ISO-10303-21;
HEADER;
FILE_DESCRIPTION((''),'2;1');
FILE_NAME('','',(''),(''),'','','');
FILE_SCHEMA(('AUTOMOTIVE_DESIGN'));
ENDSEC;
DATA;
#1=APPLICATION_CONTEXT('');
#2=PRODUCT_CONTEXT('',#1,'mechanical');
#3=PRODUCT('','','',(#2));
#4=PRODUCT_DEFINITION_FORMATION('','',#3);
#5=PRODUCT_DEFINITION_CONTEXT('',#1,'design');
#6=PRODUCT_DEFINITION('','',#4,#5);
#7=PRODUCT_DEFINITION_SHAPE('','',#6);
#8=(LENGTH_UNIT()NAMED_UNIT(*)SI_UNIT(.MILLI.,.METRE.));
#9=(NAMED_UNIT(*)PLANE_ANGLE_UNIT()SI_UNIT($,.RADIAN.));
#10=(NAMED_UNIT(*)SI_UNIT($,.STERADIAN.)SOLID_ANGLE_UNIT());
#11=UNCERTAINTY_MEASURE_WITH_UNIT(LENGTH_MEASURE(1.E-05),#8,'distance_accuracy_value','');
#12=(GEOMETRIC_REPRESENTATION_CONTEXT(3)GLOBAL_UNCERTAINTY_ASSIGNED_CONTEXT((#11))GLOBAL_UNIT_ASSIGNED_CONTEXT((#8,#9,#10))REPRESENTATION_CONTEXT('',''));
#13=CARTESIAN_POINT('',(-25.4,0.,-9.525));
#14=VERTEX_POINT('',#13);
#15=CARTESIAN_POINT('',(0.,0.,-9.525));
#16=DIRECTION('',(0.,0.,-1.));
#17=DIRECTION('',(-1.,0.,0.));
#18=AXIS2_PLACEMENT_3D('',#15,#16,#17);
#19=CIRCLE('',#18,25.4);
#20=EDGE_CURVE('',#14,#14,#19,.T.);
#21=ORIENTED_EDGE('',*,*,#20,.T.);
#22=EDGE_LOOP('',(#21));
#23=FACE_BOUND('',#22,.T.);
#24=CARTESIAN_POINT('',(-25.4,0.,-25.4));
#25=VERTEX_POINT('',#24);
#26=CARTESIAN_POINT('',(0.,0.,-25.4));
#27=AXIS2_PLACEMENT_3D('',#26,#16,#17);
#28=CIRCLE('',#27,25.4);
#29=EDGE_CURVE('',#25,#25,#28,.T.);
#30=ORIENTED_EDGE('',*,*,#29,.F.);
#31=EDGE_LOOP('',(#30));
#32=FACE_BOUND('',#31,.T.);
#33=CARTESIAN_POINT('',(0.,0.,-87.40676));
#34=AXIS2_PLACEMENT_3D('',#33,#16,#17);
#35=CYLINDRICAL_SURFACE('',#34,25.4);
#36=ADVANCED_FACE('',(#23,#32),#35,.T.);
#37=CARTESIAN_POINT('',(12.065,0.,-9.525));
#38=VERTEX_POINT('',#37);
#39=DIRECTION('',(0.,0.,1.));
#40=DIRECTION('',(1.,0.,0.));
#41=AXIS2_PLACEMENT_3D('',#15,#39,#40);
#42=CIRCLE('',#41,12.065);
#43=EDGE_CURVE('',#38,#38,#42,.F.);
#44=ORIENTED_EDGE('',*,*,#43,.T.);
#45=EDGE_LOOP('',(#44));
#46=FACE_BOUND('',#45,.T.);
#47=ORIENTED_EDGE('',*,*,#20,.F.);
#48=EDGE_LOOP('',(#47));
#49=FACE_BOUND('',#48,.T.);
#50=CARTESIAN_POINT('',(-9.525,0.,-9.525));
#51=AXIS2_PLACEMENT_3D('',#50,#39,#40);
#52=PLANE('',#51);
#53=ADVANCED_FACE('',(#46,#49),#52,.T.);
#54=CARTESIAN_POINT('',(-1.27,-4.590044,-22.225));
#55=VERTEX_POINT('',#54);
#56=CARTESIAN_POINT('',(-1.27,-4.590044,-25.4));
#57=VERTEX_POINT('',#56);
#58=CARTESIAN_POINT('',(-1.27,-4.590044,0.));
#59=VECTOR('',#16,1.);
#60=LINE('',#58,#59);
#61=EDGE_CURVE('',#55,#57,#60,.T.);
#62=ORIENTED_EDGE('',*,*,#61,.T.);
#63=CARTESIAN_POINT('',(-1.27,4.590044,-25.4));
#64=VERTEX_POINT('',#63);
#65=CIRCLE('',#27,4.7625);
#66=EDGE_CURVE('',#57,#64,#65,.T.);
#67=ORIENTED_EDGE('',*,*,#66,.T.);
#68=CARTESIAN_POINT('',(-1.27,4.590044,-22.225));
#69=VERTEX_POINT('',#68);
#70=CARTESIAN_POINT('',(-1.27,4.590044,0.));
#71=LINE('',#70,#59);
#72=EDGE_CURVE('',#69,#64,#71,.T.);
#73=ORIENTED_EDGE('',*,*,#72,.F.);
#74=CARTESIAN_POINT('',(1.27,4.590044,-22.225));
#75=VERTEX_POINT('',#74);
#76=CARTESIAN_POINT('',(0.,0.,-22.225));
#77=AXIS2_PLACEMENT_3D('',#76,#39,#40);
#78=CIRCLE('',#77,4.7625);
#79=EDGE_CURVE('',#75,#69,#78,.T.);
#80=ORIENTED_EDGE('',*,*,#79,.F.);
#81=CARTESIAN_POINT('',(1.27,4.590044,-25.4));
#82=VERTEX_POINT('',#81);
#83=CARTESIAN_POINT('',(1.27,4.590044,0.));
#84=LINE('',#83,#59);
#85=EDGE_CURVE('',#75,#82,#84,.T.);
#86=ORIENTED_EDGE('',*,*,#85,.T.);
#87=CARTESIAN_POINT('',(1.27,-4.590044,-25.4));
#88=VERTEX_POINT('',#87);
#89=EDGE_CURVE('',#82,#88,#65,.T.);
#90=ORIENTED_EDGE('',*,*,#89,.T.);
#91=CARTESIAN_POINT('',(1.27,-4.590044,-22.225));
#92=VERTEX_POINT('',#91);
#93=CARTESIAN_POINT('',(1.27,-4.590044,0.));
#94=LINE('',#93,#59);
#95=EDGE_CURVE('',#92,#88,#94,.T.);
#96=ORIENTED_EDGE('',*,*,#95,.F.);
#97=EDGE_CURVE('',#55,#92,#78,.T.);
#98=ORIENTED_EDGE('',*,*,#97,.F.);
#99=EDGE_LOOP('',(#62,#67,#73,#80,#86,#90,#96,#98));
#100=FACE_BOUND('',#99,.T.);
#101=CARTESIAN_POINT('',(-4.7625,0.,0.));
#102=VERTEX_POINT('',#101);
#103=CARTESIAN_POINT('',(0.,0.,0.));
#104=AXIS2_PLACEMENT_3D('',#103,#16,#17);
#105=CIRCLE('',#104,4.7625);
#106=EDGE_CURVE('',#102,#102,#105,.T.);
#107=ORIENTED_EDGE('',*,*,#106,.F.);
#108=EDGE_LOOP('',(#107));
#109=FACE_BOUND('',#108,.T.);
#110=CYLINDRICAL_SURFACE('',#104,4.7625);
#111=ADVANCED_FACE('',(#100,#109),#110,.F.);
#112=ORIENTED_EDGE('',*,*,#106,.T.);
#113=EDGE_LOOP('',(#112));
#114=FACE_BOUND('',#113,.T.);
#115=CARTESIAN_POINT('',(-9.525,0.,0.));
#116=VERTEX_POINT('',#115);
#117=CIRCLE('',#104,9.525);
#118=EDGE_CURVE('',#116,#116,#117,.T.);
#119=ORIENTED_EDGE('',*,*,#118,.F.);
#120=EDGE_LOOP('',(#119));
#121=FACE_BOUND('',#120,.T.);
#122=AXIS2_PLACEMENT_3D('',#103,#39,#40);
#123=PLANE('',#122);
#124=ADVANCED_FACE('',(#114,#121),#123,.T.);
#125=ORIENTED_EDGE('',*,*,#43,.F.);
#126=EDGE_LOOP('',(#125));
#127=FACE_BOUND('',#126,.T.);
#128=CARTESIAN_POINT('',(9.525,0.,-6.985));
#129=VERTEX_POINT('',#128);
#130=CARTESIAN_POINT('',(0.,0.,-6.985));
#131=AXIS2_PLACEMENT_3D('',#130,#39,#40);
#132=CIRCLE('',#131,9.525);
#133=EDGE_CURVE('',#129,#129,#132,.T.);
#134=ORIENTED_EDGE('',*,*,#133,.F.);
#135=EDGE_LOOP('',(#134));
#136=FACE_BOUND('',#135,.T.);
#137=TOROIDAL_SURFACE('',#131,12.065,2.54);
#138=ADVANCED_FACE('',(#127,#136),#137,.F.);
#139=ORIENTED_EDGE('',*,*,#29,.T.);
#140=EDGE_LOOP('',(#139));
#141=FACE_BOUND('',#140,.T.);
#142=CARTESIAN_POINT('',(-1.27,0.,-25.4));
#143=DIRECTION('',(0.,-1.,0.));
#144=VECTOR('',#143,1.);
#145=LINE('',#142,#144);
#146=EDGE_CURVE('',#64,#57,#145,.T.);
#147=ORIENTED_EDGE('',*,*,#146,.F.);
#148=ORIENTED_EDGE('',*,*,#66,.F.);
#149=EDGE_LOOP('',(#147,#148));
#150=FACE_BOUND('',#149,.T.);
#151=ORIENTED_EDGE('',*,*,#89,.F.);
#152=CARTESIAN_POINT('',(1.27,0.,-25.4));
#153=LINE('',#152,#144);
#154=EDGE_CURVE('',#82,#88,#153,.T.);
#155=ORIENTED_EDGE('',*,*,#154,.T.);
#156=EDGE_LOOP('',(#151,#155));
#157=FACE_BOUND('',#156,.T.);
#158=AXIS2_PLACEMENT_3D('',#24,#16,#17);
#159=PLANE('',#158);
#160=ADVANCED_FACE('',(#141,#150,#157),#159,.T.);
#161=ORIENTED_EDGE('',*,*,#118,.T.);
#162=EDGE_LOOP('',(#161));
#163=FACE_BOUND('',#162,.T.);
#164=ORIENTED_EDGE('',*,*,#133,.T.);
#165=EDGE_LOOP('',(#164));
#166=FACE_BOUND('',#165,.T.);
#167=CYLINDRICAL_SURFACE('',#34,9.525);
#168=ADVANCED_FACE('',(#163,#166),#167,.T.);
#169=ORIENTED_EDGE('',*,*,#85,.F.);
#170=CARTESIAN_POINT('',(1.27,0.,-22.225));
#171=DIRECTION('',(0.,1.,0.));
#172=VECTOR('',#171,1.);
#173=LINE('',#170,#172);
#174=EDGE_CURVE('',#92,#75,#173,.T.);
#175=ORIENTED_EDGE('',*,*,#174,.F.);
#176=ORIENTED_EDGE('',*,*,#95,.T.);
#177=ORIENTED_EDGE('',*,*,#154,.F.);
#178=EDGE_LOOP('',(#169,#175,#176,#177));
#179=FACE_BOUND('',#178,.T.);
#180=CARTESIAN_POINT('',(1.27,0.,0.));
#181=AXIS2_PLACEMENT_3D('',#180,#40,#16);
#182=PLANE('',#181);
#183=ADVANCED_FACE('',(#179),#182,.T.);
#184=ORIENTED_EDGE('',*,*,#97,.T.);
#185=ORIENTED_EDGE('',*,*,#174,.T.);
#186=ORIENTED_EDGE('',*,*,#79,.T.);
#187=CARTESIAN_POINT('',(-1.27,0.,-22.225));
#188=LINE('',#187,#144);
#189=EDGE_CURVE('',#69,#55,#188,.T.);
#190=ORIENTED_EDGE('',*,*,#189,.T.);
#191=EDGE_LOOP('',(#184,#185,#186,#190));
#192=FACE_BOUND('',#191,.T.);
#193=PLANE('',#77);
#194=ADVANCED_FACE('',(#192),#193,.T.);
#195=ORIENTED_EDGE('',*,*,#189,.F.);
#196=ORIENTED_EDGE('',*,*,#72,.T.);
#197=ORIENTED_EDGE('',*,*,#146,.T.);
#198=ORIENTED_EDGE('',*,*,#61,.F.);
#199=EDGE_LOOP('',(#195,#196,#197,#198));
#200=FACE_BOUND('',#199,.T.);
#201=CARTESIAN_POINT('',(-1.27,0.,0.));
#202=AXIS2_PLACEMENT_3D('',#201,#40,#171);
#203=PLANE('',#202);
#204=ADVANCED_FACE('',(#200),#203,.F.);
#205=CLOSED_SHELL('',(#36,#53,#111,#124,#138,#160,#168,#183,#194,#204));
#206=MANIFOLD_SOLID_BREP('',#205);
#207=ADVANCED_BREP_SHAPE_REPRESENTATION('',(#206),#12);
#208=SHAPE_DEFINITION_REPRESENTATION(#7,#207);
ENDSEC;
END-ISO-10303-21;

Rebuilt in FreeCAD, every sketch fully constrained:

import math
import FreeCAD as App
import Part
import Sketcher

V = App.Vector
Q = App.Units.Quantity


def edges_at(feature, points):
    """Names of the edges that pass closest to the given points."""
    edges = feature.Shape.Edges
    near = lambda p: min(range(len(edges)), key=lambda i: edges[i].distToShape(Part.Vertex(*p))[0])
    return sorted({f"Edge{near(p) + 1}" for p in points})


def add_polygon(sketch, points):
    """Adds a closed chain of lines whose ends are joined by coincident constraints."""
    first, n = sketch.GeometryCount, len(points)
    for a, b in zip(points, points[1:] + points[:1]):
        sketch.addGeometry(Part.LineSegment(App.Vector(*a, 0), App.Vector(*b, 0)), False)
    for i in range(n):
        sketch.addConstraint(Sketcher.Constraint("Coincident", first + i, 2, first + (i + 1) % n, 1))

doc = App.newDocument("Part")
params = doc.addObject("Spreadsheet::Sheet", "Params")
for row, (alias, value) in enumerate([
    ("sketch1_width", "1 in"),
    ("sketch1_width2", "0.375 in"),
    ("revolution_angle", "360 deg"),
    ("sketch2_radius", "0.1875 in"),
    ("sketch3_radius", "0.1875 in"),
    ("pocket2_length", "0.875 in"),
    ("fillet_radius", "0.1 in"),
], start=1):
    params.set(f"A{row}", alias)
    params.set(f"B{row}", "=" + value)
    params.setAlias(f"B{row}", alias)

body = doc.addObject("PartDesign::Body", "Body")

sketch1 = doc.addObject("Sketcher::SketchObject", "Sketch")
body.addObject(sketch1)
sketch1.AttachmentSupport = (doc.XZ_Plane, [""])
sketch1.MapMode = "FlatFace"
add_polygon(sketch1, [(-9.525, 0), (0, 0), (0, -25.4), (-25.4, -25.4), (-25.4, -9.525), (-9.525, -9.525)])
sketch1.addConstraint([
    Sketcher.Constraint("Horizontal", 0),
    Sketcher.Constraint("Vertical", 1),
    Sketcher.Constraint("Horizontal", 2),
    Sketcher.Constraint("Vertical", 3),
    Sketcher.Constraint("Horizontal", 4),
    Sketcher.Constraint("Vertical", 5),
    Sketcher.Constraint("Coincident", 0, 2, -1, 1),
    Sketcher.Constraint("Equal", 2, 1),
    Sketcher.Constraint("Equal", 4, 3),
    Sketcher.Constraint("DistanceX", 2, 2, 2, 1, Q("1 in")),
    Sketcher.Constraint("DistanceX", 0, 1, 0, 2, Q("0.375 in")),
])
sketch1.setExpression("Constraints[15]", "Params.sketch1_width")
sketch1.setExpression("Constraints[16]", "Params.sketch1_width2")
revolution = doc.addObject("PartDesign::Revolution", "Revolution")
body.addObject(revolution)
revolution.Profile = sketch1
revolution.ReferenceAxis = (sketch1, ["V_Axis"])
revolution.setExpression("Angle", "Params.revolution_angle")

sketch2 = doc.addObject("Sketcher::SketchObject", "Sketch001")
body.addObject(sketch2)
sketch2.AttachmentSupport = (doc.XY_Plane, [""])
sketch2.MapMode = "FlatFace"
sketch2.AttachmentOffset = App.Placement(V(0, 0, -1 * 25.4), App.Rotation())
sketch2.addGeometry([
    Part.LineSegment(V(1.27, -4.590044, 0), V(1.27, 4.590044, 0)),
    Part.ArcOfCircle(Part.Circle(V(0, 0, 0), V(0, 0, 1), 4.7625), math.radians(-74.53399), math.radians(74.53399)),
    Part.ArcOfCircle(Part.Circle(V(0, 0, 0), V(0, 0, 1), 4.7625), math.radians(105.46601), math.radians(180)),
    Part.LineSegment(V(-1.27, 4.590044, 0), V(-1.27, -4.590044, 0)),
    Part.ArcOfCircle(Part.Circle(V(0, 0, 0), V(0, 0, 1), 4.7625), math.radians(180), math.radians(254.53399)),
], False)
sketch2.addConstraint([
    Sketcher.Constraint("Coincident", 0, 1, 1, 1),
    Sketcher.Constraint("Coincident", 1, 2, 0, 2),
    Sketcher.Constraint("Coincident", 2, 1, 3, 1),
    Sketcher.Constraint("Coincident", 3, 2, 4, 2),
    Sketcher.Constraint("Tangent", 4, 1, 2, 2),
    Sketcher.Constraint("Vertical", 0),
    Sketcher.Constraint("Vertical", 3),
    Sketcher.Constraint("Coincident", 1, 3, -1, 1),
    Sketcher.Constraint("Coincident", 2, 3, -1, 1),
    Sketcher.Constraint("Equal", 1, 2),
    Sketcher.Constraint("Equal", 2, 4),
    Sketcher.Constraint("PointOnObject", 4, 1, -1),
    Sketcher.Constraint("Horizontal", 1, 2, 2, 1),
    Sketcher.Constraint("Radius", 1, Q("0.1875 in")),
    Sketcher.Constraint("DistanceX", 2, 1, 1, 2, Q("0.1 in")),
])
sketch2.setExpression("Constraints[13]", "Params.sketch2_radius")
pocket1 = doc.addObject("PartDesign::Pocket", "Pocket")
body.addObject(pocket1)
pocket1.Profile = sketch2
pocket1.Type = "ThroughAll"
pocket1.Reversed = True

sketch3 = doc.addObject("Sketcher::SketchObject", "Sketch002")
body.addObject(sketch3)
sketch3.AttachmentSupport = (doc.XY_Plane, [""])
sketch3.MapMode = "FlatFace"
sketch3.addGeometry([
    Part.ArcOfCircle(Part.Circle(V(0, 0, 0), V(0, 0, 1), 4.7625), math.radians(74.53399), math.radians(105.46601)),
    Part.LineSegment(V(-1.27, 4.590044, 0), V(-1.27, -4.590044, 0)),
    Part.ArcOfCircle(Part.Circle(V(0, 0, 0), V(0, 0, 1), 4.7625), math.radians(-105.46601), math.radians(-74.53399)),
    Part.LineSegment(V(1.27, -4.590044, 0), V(1.27, 4.590044, 0)),
], False)
sketch3.addConstraint([
    Sketcher.Constraint("Coincident", 0, 2, 1, 1),
    Sketcher.Constraint("Coincident", 1, 2, 2, 1),
    Sketcher.Constraint("Coincident", 2, 2, 3, 1),
    Sketcher.Constraint("Coincident", 3, 2, 0, 1),
    Sketcher.Constraint("Vertical", 1),
    Sketcher.Constraint("Vertical", 3),
    Sketcher.Constraint("Coincident", 0, 3, -1, 1),
    Sketcher.Constraint("Coincident", 2, 3, -1, 1),
    Sketcher.Constraint("Equal", 0, 2),
    Sketcher.Constraint("Horizontal", 1, 2, 2, 2),
    Sketcher.Constraint("Radius", 0, Q("0.1875 in")),
    Sketcher.Constraint("DistanceX", 1, 2, 2, 2, Q("0.1 in")),
])
sketch3.setExpression("Constraints[10]", "Params.sketch3_radius")
pocket2 = doc.addObject("PartDesign::Pocket", "Pocket001")
body.addObject(pocket2)
pocket2.Profile = sketch3
pocket2.setExpression("Length", "Params.pocket2_length")
doc.recompute()

fillet = doc.addObject("PartDesign::Fillet", "Fillet")
body.addObject(fillet)
fillet.Base = (pocket2, edges_at(pocket2, [(9.525, 0, -9.525)]))
fillet.setExpression("Radius", "Params.fillet_radius")

doc.recompute()
